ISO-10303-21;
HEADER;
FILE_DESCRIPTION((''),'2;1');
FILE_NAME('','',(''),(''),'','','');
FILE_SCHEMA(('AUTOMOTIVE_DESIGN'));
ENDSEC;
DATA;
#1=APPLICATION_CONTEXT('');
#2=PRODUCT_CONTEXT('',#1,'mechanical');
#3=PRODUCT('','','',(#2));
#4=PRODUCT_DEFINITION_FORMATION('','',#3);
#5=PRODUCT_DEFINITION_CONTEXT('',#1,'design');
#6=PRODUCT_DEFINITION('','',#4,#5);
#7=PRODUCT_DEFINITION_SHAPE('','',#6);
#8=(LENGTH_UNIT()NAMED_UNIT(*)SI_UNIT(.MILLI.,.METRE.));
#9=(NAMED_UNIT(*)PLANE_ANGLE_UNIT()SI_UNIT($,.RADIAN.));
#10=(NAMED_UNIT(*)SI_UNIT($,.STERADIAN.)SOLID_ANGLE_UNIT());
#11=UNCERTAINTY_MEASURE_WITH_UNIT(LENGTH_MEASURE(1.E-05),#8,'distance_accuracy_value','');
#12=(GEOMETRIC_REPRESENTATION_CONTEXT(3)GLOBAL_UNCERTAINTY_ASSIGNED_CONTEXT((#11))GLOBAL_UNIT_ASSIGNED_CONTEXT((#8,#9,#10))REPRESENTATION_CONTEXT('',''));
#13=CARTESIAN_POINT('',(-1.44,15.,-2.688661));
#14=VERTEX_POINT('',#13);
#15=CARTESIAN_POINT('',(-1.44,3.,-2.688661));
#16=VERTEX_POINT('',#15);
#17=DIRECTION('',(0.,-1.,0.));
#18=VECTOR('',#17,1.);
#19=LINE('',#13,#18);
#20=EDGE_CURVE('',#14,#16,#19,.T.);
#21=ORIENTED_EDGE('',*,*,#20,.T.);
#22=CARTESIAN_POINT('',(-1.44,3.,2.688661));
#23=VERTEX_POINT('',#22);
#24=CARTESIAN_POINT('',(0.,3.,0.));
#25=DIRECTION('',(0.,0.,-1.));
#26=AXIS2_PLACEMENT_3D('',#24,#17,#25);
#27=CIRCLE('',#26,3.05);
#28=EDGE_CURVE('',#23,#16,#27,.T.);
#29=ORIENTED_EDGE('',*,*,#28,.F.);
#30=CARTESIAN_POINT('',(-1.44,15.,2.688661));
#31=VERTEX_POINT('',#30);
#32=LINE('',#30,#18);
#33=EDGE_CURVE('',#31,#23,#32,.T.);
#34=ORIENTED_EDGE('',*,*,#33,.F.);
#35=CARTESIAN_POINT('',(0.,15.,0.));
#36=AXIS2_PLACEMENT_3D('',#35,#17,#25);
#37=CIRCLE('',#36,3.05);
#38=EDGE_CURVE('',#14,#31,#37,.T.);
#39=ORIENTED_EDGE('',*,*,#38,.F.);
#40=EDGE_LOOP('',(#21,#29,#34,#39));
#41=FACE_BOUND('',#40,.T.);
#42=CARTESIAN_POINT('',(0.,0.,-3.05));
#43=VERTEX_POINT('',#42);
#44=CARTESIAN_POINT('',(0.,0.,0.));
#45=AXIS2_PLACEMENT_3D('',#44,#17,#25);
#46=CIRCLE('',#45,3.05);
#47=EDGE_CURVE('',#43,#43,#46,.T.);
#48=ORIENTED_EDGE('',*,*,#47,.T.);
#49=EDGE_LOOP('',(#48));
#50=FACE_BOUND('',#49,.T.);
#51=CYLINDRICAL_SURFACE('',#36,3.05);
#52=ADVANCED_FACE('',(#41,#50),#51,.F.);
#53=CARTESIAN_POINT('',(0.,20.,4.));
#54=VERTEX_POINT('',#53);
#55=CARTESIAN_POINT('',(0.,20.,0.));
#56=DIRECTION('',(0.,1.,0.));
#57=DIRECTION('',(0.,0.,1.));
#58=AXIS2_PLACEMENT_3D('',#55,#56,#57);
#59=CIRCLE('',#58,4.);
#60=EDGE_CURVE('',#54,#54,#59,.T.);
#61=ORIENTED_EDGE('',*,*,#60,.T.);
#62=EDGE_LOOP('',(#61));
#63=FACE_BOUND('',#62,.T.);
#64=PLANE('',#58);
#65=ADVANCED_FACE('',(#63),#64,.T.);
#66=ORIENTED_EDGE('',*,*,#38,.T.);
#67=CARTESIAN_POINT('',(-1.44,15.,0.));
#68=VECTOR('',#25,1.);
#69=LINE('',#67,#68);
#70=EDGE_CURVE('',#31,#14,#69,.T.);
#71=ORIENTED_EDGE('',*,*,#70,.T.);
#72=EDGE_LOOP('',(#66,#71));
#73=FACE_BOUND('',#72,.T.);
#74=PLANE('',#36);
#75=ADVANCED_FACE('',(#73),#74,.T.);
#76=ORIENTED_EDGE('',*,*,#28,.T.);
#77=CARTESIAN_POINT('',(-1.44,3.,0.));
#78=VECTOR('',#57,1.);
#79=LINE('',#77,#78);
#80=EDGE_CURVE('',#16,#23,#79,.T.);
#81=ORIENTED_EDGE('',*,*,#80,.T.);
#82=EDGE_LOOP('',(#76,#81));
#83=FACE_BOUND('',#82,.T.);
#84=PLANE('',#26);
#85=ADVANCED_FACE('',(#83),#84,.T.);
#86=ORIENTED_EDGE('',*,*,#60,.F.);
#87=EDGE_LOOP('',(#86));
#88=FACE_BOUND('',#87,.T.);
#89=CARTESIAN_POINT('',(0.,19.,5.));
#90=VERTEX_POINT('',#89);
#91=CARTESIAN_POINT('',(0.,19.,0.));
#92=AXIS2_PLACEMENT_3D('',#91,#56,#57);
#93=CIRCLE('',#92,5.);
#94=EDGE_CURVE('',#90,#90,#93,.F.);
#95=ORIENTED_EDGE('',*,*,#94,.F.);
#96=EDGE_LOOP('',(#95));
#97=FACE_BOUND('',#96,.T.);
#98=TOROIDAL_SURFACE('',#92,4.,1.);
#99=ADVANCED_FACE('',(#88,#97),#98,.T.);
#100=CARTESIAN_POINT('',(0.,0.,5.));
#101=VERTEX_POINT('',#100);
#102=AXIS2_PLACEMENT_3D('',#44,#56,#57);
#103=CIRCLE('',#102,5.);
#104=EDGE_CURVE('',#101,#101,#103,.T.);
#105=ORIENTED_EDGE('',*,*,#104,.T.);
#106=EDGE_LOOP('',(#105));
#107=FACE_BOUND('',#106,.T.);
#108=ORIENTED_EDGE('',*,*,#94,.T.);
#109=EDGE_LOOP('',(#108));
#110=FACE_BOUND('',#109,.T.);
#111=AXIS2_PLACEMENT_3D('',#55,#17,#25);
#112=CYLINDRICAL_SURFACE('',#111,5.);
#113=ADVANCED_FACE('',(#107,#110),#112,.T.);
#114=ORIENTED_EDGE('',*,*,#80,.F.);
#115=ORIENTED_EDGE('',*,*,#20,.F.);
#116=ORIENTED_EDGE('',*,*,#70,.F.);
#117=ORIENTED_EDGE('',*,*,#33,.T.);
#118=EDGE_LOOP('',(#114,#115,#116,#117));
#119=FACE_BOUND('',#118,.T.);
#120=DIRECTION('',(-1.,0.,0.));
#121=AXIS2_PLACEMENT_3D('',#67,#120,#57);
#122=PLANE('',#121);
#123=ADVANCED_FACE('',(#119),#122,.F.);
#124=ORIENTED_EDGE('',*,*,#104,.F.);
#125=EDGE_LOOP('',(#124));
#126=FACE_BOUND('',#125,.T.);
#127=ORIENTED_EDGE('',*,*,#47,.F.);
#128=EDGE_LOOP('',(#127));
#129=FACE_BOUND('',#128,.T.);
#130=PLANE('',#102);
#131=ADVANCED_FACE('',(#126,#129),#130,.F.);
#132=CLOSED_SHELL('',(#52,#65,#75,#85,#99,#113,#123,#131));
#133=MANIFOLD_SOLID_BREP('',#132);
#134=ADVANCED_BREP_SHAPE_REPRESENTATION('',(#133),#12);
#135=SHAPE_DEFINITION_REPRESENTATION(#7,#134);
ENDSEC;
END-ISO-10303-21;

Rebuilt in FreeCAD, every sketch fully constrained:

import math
import FreeCAD as App
import Part
import Sketcher

V = App.Vector


def edges_at(feature, points):
    """Names of the edges that pass closest to the given points."""
    edges = feature.Shape.Edges
    near = lambda p: min(range(len(edges)), key=lambda i: edges[i].distToShape(Part.Vertex(*p))[0])
    return sorted({f"Edge{near(p) + 1}" for p in points})

doc = App.newDocument("Part")
body = doc.addObject("PartDesign::Body", "Body")

sketch1 = body.newObject("Sketcher::SketchObject", "Sketch")
sketch1.AttachmentSupport = (doc.getObject("XZ_Plane"), [""])
sketch1.MapMode = "FlatFace"
sketch1.addGeometry(Part.Circle(V(0, 0, 0), V(0, 0, 1), 5), False)
sketch1.addConstraint(Sketcher.Constraint("Coincident", 0, 3, -1, 1))
sketch1.addConstraint(Sketcher.Constraint("Diameter", 0, 10.0))
pad1 = body.newObject("PartDesign::Pad", "Pad")
pad1.Profile = sketch1
pad1.Length = 20
pad1.Reversed = True
doc.recompute()

fillet = body.newObject("PartDesign::Fillet", "Fillet")
fillet.Base = (pad1, edges_at(pad1, [(0, 20, -5)]))
fillet.Radius = 1

sketch2 = body.newObject("Sketcher::SketchObject", "Sketch001")
sketch2.AttachmentSupport = (doc.getObject("XZ_Plane"), [""])
sketch2.MapMode = "FlatFace"
sketch2.addGeometry(Part.ArcOfCircle(Part.Circle(V(0, 0, 0), V(0, 0, 1), 3), math.radians(-118), math.radians(118)), False)
sketch2.addGeometry(Part.LineSegment(V(-1.4, 2.7, 0), V(-1.4, -2.7, 0)), False)
sketch2.addConstraint(Sketcher.Constraint("Coincident", 0, 1, 1, 2))
sketch2.addConstraint(Sketcher.Constraint("Coincident", 1, 1, 0, 2))
sketch2.addConstraint(Sketcher.Constraint("Vertical", 1))
sketch2.addConstraint(Sketcher.Constraint("Coincident", 0, 3, -1, 1))
sketch2.addConstraint(Sketcher.Constraint("Radius", 0, 3.05))
sketch2.addConstraint(Sketcher.Constraint("DistanceX", 0, 1, -1, 1, 1.44))
pocket1 = body.newObject("PartDesign::Pocket", "Pocket")
pocket1.Profile = sketch2
pocket1.Length = 15

sketch3 = body.newObject("Sketcher::SketchObject", "Sketch002")
sketch3.AttachmentSupport = (doc.getObject("XZ_Plane"), [""])
sketch3.MapMode = "FlatFace"
sketch3.addGeometry(Part.Circle(V(0, 0, 0), V(0, 0, 1), 3), False)
sketch3.addConstraint(Sketcher.Constraint("Coincident", 0, 3, -1, 1))
sketch3.addConstraint(Sketcher.Constraint("Diameter", 0, 6.1))
pocket2 = body.newObject("PartDesign::Pocket", "Pocket001")
pocket2.Profile = sketch3
pocket2.Length = 3

doc.recompute()
